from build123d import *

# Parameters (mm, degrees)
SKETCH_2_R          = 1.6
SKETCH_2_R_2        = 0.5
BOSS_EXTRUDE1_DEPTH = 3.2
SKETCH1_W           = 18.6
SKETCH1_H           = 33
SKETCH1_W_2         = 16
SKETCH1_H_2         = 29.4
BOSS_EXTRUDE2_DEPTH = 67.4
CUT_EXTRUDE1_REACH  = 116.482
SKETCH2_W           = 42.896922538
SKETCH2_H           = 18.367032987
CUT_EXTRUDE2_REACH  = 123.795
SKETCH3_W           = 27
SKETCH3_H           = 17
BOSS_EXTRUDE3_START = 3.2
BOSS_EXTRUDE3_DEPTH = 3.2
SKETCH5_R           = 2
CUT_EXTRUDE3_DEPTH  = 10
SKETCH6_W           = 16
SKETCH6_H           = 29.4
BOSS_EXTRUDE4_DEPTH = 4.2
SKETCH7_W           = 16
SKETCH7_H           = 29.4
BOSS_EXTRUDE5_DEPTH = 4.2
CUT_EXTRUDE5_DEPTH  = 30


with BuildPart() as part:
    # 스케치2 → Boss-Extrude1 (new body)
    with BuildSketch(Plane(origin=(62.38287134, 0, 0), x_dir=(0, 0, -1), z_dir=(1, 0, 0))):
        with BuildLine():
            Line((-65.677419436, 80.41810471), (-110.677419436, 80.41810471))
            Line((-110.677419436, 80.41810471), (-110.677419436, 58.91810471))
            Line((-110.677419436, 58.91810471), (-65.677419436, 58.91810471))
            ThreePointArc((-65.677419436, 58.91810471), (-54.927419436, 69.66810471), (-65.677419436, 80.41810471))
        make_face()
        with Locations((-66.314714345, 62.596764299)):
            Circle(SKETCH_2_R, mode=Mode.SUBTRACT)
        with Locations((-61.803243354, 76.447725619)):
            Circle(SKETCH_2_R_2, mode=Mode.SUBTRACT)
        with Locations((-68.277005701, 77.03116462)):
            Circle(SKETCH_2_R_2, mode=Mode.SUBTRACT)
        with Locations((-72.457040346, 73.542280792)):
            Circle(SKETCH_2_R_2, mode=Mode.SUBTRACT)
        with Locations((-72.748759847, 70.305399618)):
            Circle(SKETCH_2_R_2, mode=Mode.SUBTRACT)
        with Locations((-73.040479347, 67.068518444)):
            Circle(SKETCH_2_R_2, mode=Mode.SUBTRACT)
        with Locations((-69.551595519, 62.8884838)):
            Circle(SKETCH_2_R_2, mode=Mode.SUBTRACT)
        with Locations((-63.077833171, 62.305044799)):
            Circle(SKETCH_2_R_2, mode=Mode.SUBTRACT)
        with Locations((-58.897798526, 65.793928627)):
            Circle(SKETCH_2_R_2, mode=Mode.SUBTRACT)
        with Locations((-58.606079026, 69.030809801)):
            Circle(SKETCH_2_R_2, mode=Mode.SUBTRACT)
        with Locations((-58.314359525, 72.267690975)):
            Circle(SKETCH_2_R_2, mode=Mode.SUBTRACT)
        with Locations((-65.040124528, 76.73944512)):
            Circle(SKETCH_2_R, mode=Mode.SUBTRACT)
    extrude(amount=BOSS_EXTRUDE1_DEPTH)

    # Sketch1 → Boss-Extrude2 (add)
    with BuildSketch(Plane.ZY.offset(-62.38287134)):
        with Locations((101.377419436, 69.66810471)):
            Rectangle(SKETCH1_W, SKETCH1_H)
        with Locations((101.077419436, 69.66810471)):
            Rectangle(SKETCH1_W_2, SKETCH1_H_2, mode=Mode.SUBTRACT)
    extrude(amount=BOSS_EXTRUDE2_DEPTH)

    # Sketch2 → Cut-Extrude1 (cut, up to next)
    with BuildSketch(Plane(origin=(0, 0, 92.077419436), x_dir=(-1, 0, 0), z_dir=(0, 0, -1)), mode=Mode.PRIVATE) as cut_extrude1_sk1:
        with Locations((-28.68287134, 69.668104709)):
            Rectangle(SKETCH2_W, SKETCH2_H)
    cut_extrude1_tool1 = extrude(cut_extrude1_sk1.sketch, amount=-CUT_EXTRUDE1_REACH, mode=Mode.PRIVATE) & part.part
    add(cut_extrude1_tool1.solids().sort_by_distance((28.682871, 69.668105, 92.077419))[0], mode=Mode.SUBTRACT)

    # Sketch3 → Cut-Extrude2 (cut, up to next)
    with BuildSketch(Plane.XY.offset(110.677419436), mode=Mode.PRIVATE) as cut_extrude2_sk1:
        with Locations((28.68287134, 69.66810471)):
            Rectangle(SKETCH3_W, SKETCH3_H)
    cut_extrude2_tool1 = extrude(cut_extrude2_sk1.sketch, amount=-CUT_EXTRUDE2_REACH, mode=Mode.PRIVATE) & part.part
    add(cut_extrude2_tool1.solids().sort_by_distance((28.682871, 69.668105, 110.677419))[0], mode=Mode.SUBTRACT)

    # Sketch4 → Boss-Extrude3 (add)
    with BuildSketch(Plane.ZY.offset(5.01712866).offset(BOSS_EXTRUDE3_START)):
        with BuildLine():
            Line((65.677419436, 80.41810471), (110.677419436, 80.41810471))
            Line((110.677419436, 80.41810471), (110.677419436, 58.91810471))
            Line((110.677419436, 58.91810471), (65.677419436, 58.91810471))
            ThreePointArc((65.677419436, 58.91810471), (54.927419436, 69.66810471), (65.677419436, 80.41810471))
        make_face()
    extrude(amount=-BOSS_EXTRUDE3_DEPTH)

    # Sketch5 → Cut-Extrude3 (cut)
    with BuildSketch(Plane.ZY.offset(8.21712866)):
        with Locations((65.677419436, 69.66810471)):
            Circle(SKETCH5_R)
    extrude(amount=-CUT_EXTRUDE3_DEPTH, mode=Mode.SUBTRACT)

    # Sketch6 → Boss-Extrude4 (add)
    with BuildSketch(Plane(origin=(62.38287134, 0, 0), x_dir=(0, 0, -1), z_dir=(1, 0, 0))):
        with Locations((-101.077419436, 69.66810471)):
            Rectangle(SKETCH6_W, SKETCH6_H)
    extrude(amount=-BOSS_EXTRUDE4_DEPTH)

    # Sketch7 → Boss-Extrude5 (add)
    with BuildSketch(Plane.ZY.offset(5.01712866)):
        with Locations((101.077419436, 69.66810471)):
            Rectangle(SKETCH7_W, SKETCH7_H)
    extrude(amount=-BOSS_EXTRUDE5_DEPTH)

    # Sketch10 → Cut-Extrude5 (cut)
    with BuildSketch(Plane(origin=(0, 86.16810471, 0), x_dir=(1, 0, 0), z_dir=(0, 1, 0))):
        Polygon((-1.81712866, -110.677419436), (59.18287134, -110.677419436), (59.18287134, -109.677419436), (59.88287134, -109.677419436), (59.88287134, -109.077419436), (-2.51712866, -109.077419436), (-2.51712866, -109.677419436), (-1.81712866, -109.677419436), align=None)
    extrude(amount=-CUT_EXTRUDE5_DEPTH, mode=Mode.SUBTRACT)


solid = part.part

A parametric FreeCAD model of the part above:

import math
import FreeCAD as App
import Part
import Sketcher

V = App.Vector
Q = App.Units.Quantity


def add_polygon(sketch, points):
    """Adds a closed chain of lines whose ends are joined by coincident constraints."""
    first, n = sketch.GeometryCount, len(points)
    for a, b in zip(points, points[1:] + points[:1]):
        sketch.addGeometry(Part.LineSegment(App.Vector(*a, 0), App.Vector(*b, 0)), False)
    for i in range(n):
        sketch.addConstraint(Sketcher.Constraint("Coincident", first + i, 2, first + (i + 1) % n, 1))

doc = App.newDocument("Part")
params = doc.addObject("Spreadsheet::Sheet", "Params")
for row, (alias, value) in enumerate([
    ("sketch1_diameter", "1 mm"),
    ("sketch1_diameter2", "3.2 mm"),
    ("sketch1_height", "45 mm"),
    ("sketch1_radius", "10.75 mm"),
    ("pad1_length", "3.2 mm"),
    ("sketch2_width", "33 mm"),
    ("sketch2_height", "16 mm"),
    ("sketch2_width2", "29.4 mm"),
    ("sketch2_height2", "18.6 mm"),
    ("pad2_length", "67.4 mm"),
    ("sketch4_width", "27 mm"),
    ("sketch4_height", "17 mm"),
    ("sketch5_height", "45 mm"),
    ("sketch5_radius", "10.75 mm"),
    ("pad3_length", "3.2 mm"),
    ("sketch6_diameter", "4 mm"),
    ("pocket3_length", "10 mm"),
    ("sketch7_height", "16 mm"),
    ("sketch7_width", "29.4 mm"),
    ("pad4_length", "4.2 mm"),
    ("sketch8_height", "16 mm"),
    ("sketch8_width", "29.4 mm"),
    ("pad5_length", "4.2 mm"),
    ("sketch9_width", "61 mm"),
    ("sketch9_height", "1 mm"),
    ("sketch9_width2", "0.7 mm"),
    ("sketch9_height2", "0.6 mm"),
    ("pocket4_length", "30 mm"),
], start=1):
    params.set(f"A{row}", alias)
    params.set(f"B{row}", "=" + value)
    params.setAlias(f"B{row}", alias)

body = doc.addObject("PartDesign::Body", "Body")

sketch1 = doc.addObject("Sketcher::SketchObject", "Sketch")
body.addObject(sketch1)
sketch1.AttachmentSupport = (doc.YZ_Plane, [""])
sketch1.MapMode = "FlatFace"
sketch1.AttachmentOffset = App.Placement(V(0, 0, 62.382871), App.Rotation())
sketch1.addGeometry([
    Part.LineSegment(V(80.418105, 65.677419, 0), V(80.418105, 110.677419, 0)),
    Part.LineSegment(V(80.418105, 110.677419, 0), V(58.918105, 110.677419, 0)),
    Part.LineSegment(V(58.918105, 110.677419, 0), V(58.918105, 65.677419, 0)),
    Part.ArcOfCircle(Part.Circle(V(69.668105, 65.677419, 0), V(0, 0, 1), 10.75), math.radians(180), math.radians(360)),
    Part.Circle(V(62.888484, 69.551596, 0), V(0, 0, 1), 0.5),
    Part.Circle(V(62.596764, 66.314714, 0), V(0, 0, 1), 1.6),
    Part.Circle(V(67.068518, 73.040479, 0), V(0, 0, 1), 0.5),
    Part.Circle(V(62.305045, 63.077833, 0), V(0, 0, 1), 0.5),
    Part.Circle(V(65.793929, 58.897799, 0), V(0, 0, 1), 0.5),
    Part.Circle(V(69.03081, 58.606079, 0), V(0, 0, 1), 0.5),
    Part.Circle(V(70.3054, 72.74876, 0), V(0, 0, 1), 0.5),
    Part.Circle(V(73.542281, 72.45704, 0), V(0, 0, 1), 0.5),
    Part.Circle(V(77.031165, 68.277006, 0), V(0, 0, 1), 0.5),
    Part.Circle(V(72.267691, 58.31436, 0), V(0, 0, 1), 0.5),
    Part.Circle(V(76.739445, 65.040125, 0), V(0, 0, 1), 1.6),
    Part.Circle(V(76.447726, 61.803243, 0), V(0, 0, 1), 0.5),
], False)
sketch1.addConstraint([
    Sketcher.Constraint("Coincident", 0, 2, 1, 1),
    Sketcher.Constraint("Coincident", 1, 2, 2, 1),
    Sketcher.Constraint("Tangent", 2, 2, 3, 1),
    Sketcher.Constraint("Tangent", 3, 2, 0, 1),
    Sketcher.Constraint("Vertical", 0),
    Sketcher.Constraint("Horizontal", 1),
    Sketcher.Constraint("Vertical", 2),
    Sketcher.Constraint("Equal", 4, 6),
    Sketcher.Constraint("Equal", 6, 7),
    Sketcher.Constraint("Equal", 7, 8),
    Sketcher.Constraint("Equal", 8, 9),
    Sketcher.Constraint("Equal", 9, 10),
    Sketcher.Constraint("Equal", 10, 11),
    Sketcher.Constraint("Equal", 11, 12),
    Sketcher.Constraint("Equal", 12, 13),
    Sketcher.Constraint("Equal", 5, 14),
    Sketcher.Constraint("Equal", 13, 15),
    Sketcher.Constraint("Diameter", 4, Q("1 mm")),
    Sketcher.Constraint("Diameter", 5, Q("3.2 mm")),
    Sketcher.Constraint("DistanceY", 0, 1, 0, 2, Q("45 mm")),
    Sketcher.Constraint("Radius", 3, Q("10.75 mm")),
    Sketcher.Constraint("DistanceY", -1, 1, 8, 3, Q("58.897799 mm")),
    Sketcher.Constraint("DistanceX", -1, 1, 10, 3, Q("70.3054 mm")),
    Sketcher.Constraint("DistanceY", -1, 1, 3, 3, Q("65.677419 mm")),
    Sketcher.Constraint("DistanceX", -1, 1, 6, 3, Q("67.068518 mm")),
    Sketcher.Constraint("DistanceY", -1, 1, 6, 3, Q("73.040479 mm")),
    Sketcher.Constraint("DistanceX", -1, 1, 8, 3, Q("65.793929 mm")),
    Sketcher.Constraint("DistanceX", -1, 1, 9, 3, Q("69.03081 mm")),
    Sketcher.Constraint("DistanceY", -1, 1, 9, 3, Q("58.606079 mm")),
    Sketcher.Constraint("DistanceY", -1, 1, 10, 3, Q("72.74876 mm")),
    Sketcher.Constraint("DistanceX", -1, 1, 11, 3, Q("73.542281 mm")),
    Sketcher.Constraint("DistanceY", -1, 1, 11, 3, Q("72.45704 mm")),
    Sketcher.Constraint("DistanceX", -1, 1, 13, 3, Q("72.267691 mm")),
    Sketcher.Constraint("DistanceY", -1, 1, 13, 3, Q("58.31436 mm")),
    Sketcher.Constraint("DistanceX", 4, 3, 3, 3, Q("6.779621 mm")),
    Sketcher.Constraint("DistanceX", 5, 3, 4, 3, Q("0.29172 mm")),
    Sketcher.Constraint("DistanceY", 5, 3, 4, 3, Q("3.236881 mm")),
    Sketcher.Constraint("DistanceX", 7, 3, 5, 3, Q("0.291719 mm")),
    Sketcher.Constraint("DistanceY", 7, 3, 5, 3, Q("3.236881 mm")),
    Sketcher.Constraint("DistanceX", 3, 3, 12, 3, Q("7.36306 mm")),
    Sketcher.Constraint("DistanceX", 14, 3, 12, 3, Q("0.291719 mm")),
    Sketcher.Constraint("DistanceY", 14, 3, 12, 3, Q("3.236881 mm")),
    Sketcher.Constraint("DistanceX", 15, 3, 14, 3, Q("0.29172 mm")),
    Sketcher.Constraint("DistanceY", 15, 3, 14, 3, Q("3.236881 mm")),
    Sketcher.Constraint("DistanceX", -1, 1, 3, 3, Q("69.668105 mm")),
    Sketcher.Constraint("DistanceY", -1, 1, 4, 3, Q("69.551596 mm")),
    Sketcher.Constraint("DistanceY", -1, 1, 12, 3, Q("68.277006 mm")),
])
sketch1.setExpression("Constraints[17]", "Params.sketch1_diameter")
sketch1.setExpression("Constraints[18]", "Params.sketch1_diameter2")
sketch1.setExpression("Constraints[19]", "Params.sketch1_height")
sketch1.setExpression("Constraints[20]", "Params.sketch1_radius")
pad1 = doc.addObject("PartDesign::Pad", "Pad")
body.addObject(pad1)
pad1.Profile = sketch1
pad1.setExpression("Length", "Params.pad1_length")

sketch2 = doc.addObject("Sketcher::SketchObject", "Sketch001")
body.addObject(sketch2)
sketch2.AttachmentSupport = (doc.YZ_Plane, [""])
sketch2.MapMode = "FlatFace"
sketch2.AttachmentOffset = App.Placement(V(0, 0, 62.382871), App.Rotation())
add_polygon(sketch2, [(86.168105, 92.077419), (53.168105, 92.077419), (53.168105, 110.677419), (86.168105, 110.677419)])
add_polygon(sketch2, [(54.968105, 109.077419), (54.968105, 93.077419), (84.368105, 93.077419), (84.368105, 109.077419)])
sketch2.addConstraint([
    Sketcher.Constraint("Horizontal", 0),
    Sketcher.Constraint("Vertical", 1),
    Sketcher.Constraint("Horizontal", 2),
    Sketcher.Constraint("Vertical", 3),
    Sketcher.Constraint("Vertical", 4),
    Sketcher.Constraint("Horizontal", 5),
    Sketcher.Constraint("Vertical", 6),
    Sketcher.Constraint("Horizontal", 7),
    Sketcher.Constraint("DistanceX", 0, 2, 0, 1, Q("33 mm")),
    Sketcher.Constraint("DistanceY", 4, 2, 4, 1, Q("16 mm")),
    Sketcher.Constraint("DistanceX", 5, 1, 5, 2, Q("29.4 mm")),
    Sketcher.Constraint("DistanceY", 1, 1, 1, 2, Q("18.6 mm")),
    Sketcher.Constraint("DistanceY", 0, 2, 4, 2, Q("1 mm")),
    Sketcher.Constraint("DistanceX", 0, 2, 4, 2, Q("1.8 mm")),
    Sketcher.Constraint("DistanceY", -1, 1, 0, 2, Q("92.077419 mm")),
    Sketcher.Constraint("DistanceX", -1, 1, 0, 2, Q("53.168105 mm")),
])
sketch2.setExpression("Constraints[16]", "Params.sketch2_width")
sketch2.setExpression("Constraints[17]", "Params.sketch2_height")
sketch2.setExpression("Constraints[18]", "Params.sketch2_width2")
sketch2.setExpression("Constraints[19]", "Params.sketch2_height2")
pad2 = doc.addObject("PartDesign::Pad", "Pad001")
body.addObject(pad2)
pad2.Profile = sketch2
pad2.setExpression("Length", "Params.pad2_length")
pad2.Reversed = True

sketch3 = doc.addObject("Sketcher::SketchObject", "Sketch002")
body.addObject(sketch3)
sketch3.AttachmentSupport = (doc.XY_Plane, [""])
sketch3.MapMode = "FlatFace"
sketch3.AttachmentOffset = App.Placement(V(0, 0, 92.077419), App.Rotation())
add_polygon(sketch3, [(50.131333, 78.851621), (50.131333, 60.484588), (7.23441, 60.484588), (7.23441, 78.851621)])
sketch3.addConstraint([
    Sketcher.Constraint("Vertical", 0),
    Sketcher.Constraint("Horizontal", 1),
    Sketcher.Constraint("Vertical", 2),
    Sketcher.Constraint("Horizontal", 3),
    Sketcher.Constraint("DistanceX", 1, 2, 1, 1, Q("42.896923 mm")),
    Sketcher.Constraint("DistanceY", 0, 2, 0, 1, Q("18.367033 mm")),
    Sketcher.Constraint("DistanceY", -1, 1, 0, 2, Q("60.484588 mm")),
    Sketcher.Constraint("DistanceX", -1, 1, 1, 2, Q("7.23441 mm")),
])
pocket1 = doc.addObject("PartDesign::Pocket", "Pocket")
body.addObject(pocket1)
pocket1.Profile = sketch3
pocket1.Type = "UpToFirst"
pocket1.Reversed = True

sketch4 = doc.addObject("Sketcher::SketchObject", "Sketch003")
body.addObject(sketch4)
sketch4.AttachmentSupport = (doc.XY_Plane, [""])
sketch4.MapMode = "FlatFace"
sketch4.AttachmentOffset = App.Placement(V(0, 0, 110.677419), App.Rotation())
add_polygon(sketch4, [(15.182871, 78.168105), (15.182871, 61.168105), (42.182871, 61.168105), (42.182871, 78.168105)])
sketch4.addConstraint([
    Sketcher.Constraint("Vertical", 0),
    Sketcher.Constraint("Horizontal", 1),
    Sketcher.Constraint("Vertical", 2),
    Sketcher.Constraint("Horizontal", 3),
    Sketcher.Constraint("DistanceX", 1, 1, 1, 2, Q("27 mm")),
    Sketcher.Constraint("DistanceY", 0, 2, 0, 1, Q("17 mm")),
    Sketcher.Constraint("DistanceX", -1, 1, 0, 2, Q("15.182871 mm")),
    Sketcher.Constraint("DistanceY", -1, 1, 0, 2, Q("61.168105 mm")),
])
sketch4.setExpression("Constraints[8]", "Params.sketch4_width")
sketch4.setExpression("Constraints[9]", "Params.sketch4_height")
pocket2 = doc.addObject("PartDesign::Pocket", "Pocket001")
body.addObject(pocket2)
pocket2.Profile = sketch4
pocket2.Type = "UpToFirst"

sketch5 = doc.addObject("Sketcher::SketchObject", "Sketch004")
body.addObject(sketch5)
sketch5.AttachmentSupport = (doc.YZ_Plane, [""])
sketch5.MapMode = "FlatFace"
sketch5.AttachmentOffset = App.Placement(V(0, 0, -8.217129), App.Rotation())
sketch5.addGeometry([
    Part.LineSegment(V(80.418105, 110.677419, 0), V(80.418105, 65.677419, 0)),
    Part.ArcOfCircle(Part.Circle(V(69.668105, 65.677419, 0), V(0, 0, 1), 10.75), math.radians(180), math.radians(360)),
    Part.LineSegment(V(58.918105, 65.677419, 0), V(58.918105, 110.677419, 0)),
    Part.LineSegment(V(58.918105, 110.677419, 0), V(80.418105, 110.677419, 0)),
], False)
sketch5.addConstraint([
    Sketcher.Constraint("Tangent", 0, 2, 1, 2),
    Sketcher.Constraint("Tangent", 1, 1, 2, 1),
    Sketcher.Constraint("Coincident", 2, 2, 3, 1),
    Sketcher.Constraint("Coincident", 3, 2, 0, 1),
    Sketcher.Constraint("Vertical", 0),
    Sketcher.Constraint("Vertical", 2),
    Sketcher.Constraint("Horizontal", 3),
    Sketcher.Constraint("DistanceY", 0, 2, 0, 1, Q("45 mm")),
    Sketcher.Constraint("Radius", 1, Q("10.75 mm")),
    Sketcher.Constraint("DistanceY", -1, 1, 1, 3, Q("65.677419 mm")),
    Sketcher.Constraint("DistanceX", -1, 1, 1, 3, Q("69.668105 mm")),
])
sketch5.setExpression("Constraints[7]", "Params.sketch5_height")
sketch5.setExpression("Constraints[8]", "Params.sketch5_radius")
pad3 = doc.addObject("PartDesign::Pad", "Pad002")
body.addObject(pad3)
pad3.Profile = sketch5
pad3.setExpression("Length", "Params.pad3_length")

sketch6 = doc.addObject("Sketcher::SketchObject", "Sketch005")
body.addObject(sketch6)
sketch6.AttachmentSupport = (doc.YZ_Plane, [""])
sketch6.MapMode = "FlatFace"
sketch6.AttachmentOffset = App.Placement(V(0, 0, -8.217129), App.Rotation())
sketch6.addGeometry(Part.Circle(V(69.668105, 65.677419, 0), V(0, 0, 1), 2), False)
sketch6.addConstraint([
    Sketcher.Constraint("Diameter", 0, Q("4 mm")),
    Sketcher.Constraint("DistanceY", -1, 1, 0, 3, Q("65.677419 mm")),
    Sketcher.Constraint("DistanceX", -1, 1, 0, 3, Q("69.668105 mm")),
])
sketch6.setExpression("Constraints[0]", "Params.sketch6_diameter")
pocket3 = doc.addObject("PartDesign::Pocket", "Pocket002")
body.addObject(pocket3)
pocket3.Profile = sketch6
pocket3.setExpression("Length", "Params.pocket3_length")
pocket3.Reversed = True

sketch7 = doc.addObject("Sketcher::SketchObject", "Sketch006")
body.addObject(sketch7)
sketch7.AttachmentSupport = (doc.YZ_Plane, [""])
sketch7.MapMode = "FlatFace"
sketch7.AttachmentOffset = App.Placement(V(0, 0, 62.382871), App.Rotation())
add_polygon(sketch7, [(84.368105, 109.077419), (54.968105, 109.077419), (54.968105, 93.077419), (84.368105, 93.077419)])
sketch7.addConstraint([
    Sketcher.Constraint("Horizontal", 0),
    Sketcher.Constraint("Vertical", 1),
    Sketcher.Constraint("Horizontal", 2),
    Sketcher.Constraint("Vertical", 3),
    Sketcher.Constraint("DistanceY", 1, 2, 1, 1, Q("16 mm")),
    Sketcher.Constraint("DistanceX", 0, 2, 0, 1, Q("29.4 mm")),
    Sketcher.Constraint("DistanceY", -1, 1, 0, 2, Q("109.077419 mm")),
    Sketcher.Constraint("DistanceX", -1, 1, 0, 2, Q("54.968105 mm")),
])
sketch7.setExpression("Constraints[8]", "Params.sketch7_height")
sketch7.setExpression("Constraints[9]", "Params.sketch7_width")
pad4 = doc.addObject("PartDesign::Pad", "Pad003")
body.addObject(pad4)
pad4.Profile = sketch7
pad4.setExpression("Length", "Params.pad4_length")
pad4.Reversed = True

sketch8 = doc.addObject("Sketcher::SketchObject", "Sketch007")
body.addObject(sketch8)
sketch8.AttachmentSupport = (doc.YZ_Plane, [""])
sketch8.MapMode = "FlatFace"
sketch8.AttachmentOffset = App.Placement(V(0, 0, -5.017129), App.Rotation())
add_polygon(sketch8, [(84.368105, 93.077419), (54.968105, 93.077419), (54.968105, 109.077419), (84.368105, 109.077419)])
sketch8.addConstraint([
    Sketcher.Constraint("Horizontal", 0),
    Sketcher.Constraint("Vertical", 1),
    Sketcher.Constraint("Horizontal", 2),
    Sketcher.Constraint("Vertical", 3),
    Sketcher.Constraint("DistanceY", 1, 1, 1, 2, Q("16 mm")),
    Sketcher.Constraint("DistanceX", 0, 2, 0, 1, Q("29.4 mm")),
    Sketcher.Constraint("DistanceY", -1, 1, 0, 2, Q("93.077419 mm")),
    Sketcher.Constraint("DistanceX", -1, 1, 0, 2, Q("54.968105 mm")),
])
sketch8.setExpression("Constraints[8]", "Params.sketch8_height")
sketch8.setExpression("Constraints[9]", "Params.sketch8_width")
pad5 = doc.addObject("PartDesign::Pad", "Pad004")
body.addObject(pad5)
pad5.Profile = sketch8
pad5.setExpression("Length", "Params.pad5_length")

sketch9 = doc.addObject("Sketcher::SketchObject", "Sketch008")
body.addObject(sketch9)
sketch9.AttachmentSupport = (doc.XZ_Plane, [""])
sketch9.MapMode = "FlatFace"
sketch9.AttachmentOffset = App.Placement(V(0, 0, -86.168105), App.Rotation())
add_polygon(sketch9, [(-1.817129, 110.677419), (59.182871, 110.677419), (59.182871, 109.677419), (59.882871, 109.677419), (59.882871, 109.077419), (-2.517129, 109.077419), (-2.517129, 109.677419), (-1.817129, 109.677419)])
sketch9.addConstraint([
    Sketcher.Constraint("Horizontal", 0),
    Sketcher.Constraint("Vertical", 1),
    Sketcher.Constraint("Horizontal", 2),
    Sketcher.Constraint("Vertical", 3),
    Sketcher.Constraint("Horizontal", 4),
    Sketcher.Constraint("Vertical", 5),
    Sketcher.Constraint("Horizontal", 6),
    Sketcher.Constraint("Vertical", 7),
    Sketcher.Constraint("Horizontal", 2, 2, 5, 2),
    Sketcher.Constraint("Equal", 2, 6),
    Sketcher.Constraint("DistanceX", 0, 1, 0, 2, Q("61 mm")),
    Sketcher.Constraint("DistanceY", 1, 2, 1, 1, Q("1 mm")),
    Sketcher.Constraint("DistanceX", 2, 1, 2, 2, Q("0.7 mm")),
    Sketcher.Constraint("DistanceY", 3, 2, 3, 1, Q("0.6 mm")),
    Sketcher.Constraint("DistanceX", -1, 1, 0, 2, Q("59.182871 mm")),
    Sketcher.Constraint("DistanceY", -1, 1, 0, 2, Q("110.677419 mm")),
])
sketch9.setExpression("Constraints[18]", "Params.sketch9_width")
sketch9.setExpression("Constraints[19]", "Params.sketch9_height")
sketch9.setExpression("Constraints[20]", "Params.sketch9_width2")
sketch9.setExpression("Constraints[21]", "Params.sketch9_height2")
pocket4 = doc.addObject("PartDesign::Pocket", "Pocket003")
body.addObject(pocket4)
pocket4.Profile = sketch9
pocket4.setExpression("Length", "Params.pocket4_length")
pocket4.Reversed = True

doc.recompute()
